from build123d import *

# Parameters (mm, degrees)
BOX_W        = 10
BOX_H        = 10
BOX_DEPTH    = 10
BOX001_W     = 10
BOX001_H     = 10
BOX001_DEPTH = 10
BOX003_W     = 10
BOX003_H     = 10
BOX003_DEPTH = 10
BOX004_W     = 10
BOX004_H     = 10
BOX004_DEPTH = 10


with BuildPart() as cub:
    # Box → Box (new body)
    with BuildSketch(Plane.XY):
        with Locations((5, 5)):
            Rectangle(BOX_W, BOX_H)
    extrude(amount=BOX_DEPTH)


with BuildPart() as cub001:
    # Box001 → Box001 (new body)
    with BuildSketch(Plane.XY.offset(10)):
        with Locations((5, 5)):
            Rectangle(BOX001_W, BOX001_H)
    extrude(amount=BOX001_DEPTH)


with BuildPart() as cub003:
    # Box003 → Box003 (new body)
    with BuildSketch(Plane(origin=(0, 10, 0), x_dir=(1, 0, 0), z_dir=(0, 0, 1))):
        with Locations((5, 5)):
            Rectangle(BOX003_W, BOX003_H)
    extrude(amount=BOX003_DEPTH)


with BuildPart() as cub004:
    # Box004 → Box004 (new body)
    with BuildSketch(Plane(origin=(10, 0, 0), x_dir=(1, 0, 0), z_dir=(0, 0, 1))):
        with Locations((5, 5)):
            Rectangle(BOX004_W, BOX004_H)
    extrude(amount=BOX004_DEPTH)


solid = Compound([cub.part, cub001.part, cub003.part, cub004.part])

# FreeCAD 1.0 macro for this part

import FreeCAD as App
import Part
import Sketcher

V = App.Vector
Q = App.Units.Quantity


def add_polygon(sketch, points):
    """Adds a closed chain of lines whose ends are joined by coincident constraints."""
    first, n = sketch.GeometryCount, len(points)
    for a, b in zip(points, points[1:] + points[:1]):
        sketch.addGeometry(Part.LineSegment(App.Vector(*a, 0), App.Vector(*b, 0)), False)
    for i in range(n):
        sketch.addConstraint(Sketcher.Constraint("Coincident", first + i, 2, first + (i + 1) % n, 1))

doc = App.newDocument("Part")
body = doc.addObject("PartDesign::Body", "Body")

sketch1 = body.newObject("Sketcher::SketchObject", "Sketch")
sketch1.AttachmentSupport = (doc.getObject("XY_Plane"), [""])
sketch1.MapMode = "FlatFace"
add_polygon(sketch1, [(0, 10), (0, 0), (10, 0), (10, 10)])
sketch1.addConstraint([
    Sketcher.Constraint("Vertical", 0),
    Sketcher.Constraint("Horizontal", 1),
    Sketcher.Constraint("Vertical", 2),
    Sketcher.Constraint("Horizontal", 3),
    Sketcher.Constraint("Coincident", 0, 2, -1, 1),
    Sketcher.Constraint("Equal", 3, 0),
    Sketcher.Constraint("DistanceX", 1, 1, 1, 2, Q("10 mm")),
])
pad1 = body.newObject("PartDesign::Pad", "Pad")
pad1.Profile = sketch1
pad1.Length = 10
body2 = doc.addObject("PartDesign::Body", "Body001")

sketch2 = body2.newObject("Sketcher::SketchObject", "Sketch001")
sketch2.AttachmentSupport = (doc.getObject("XY_Plane001"), [""])
sketch2.MapMode = "FlatFace"
sketch2.AttachmentOffset = App.Placement(V(0, 0, 10), App.Rotation())
add_polygon(sketch2, [(0, 10), (0, 0), (10, 0), (10, 10)])
sketch2.addConstraint([
    Sketcher.Constraint("Vertical", 0),
    Sketcher.Constraint("Horizontal", 1),
    Sketcher.Constraint("Vertical", 2),
    Sketcher.Constraint("Horizontal", 3),
    Sketcher.Constraint("Coincident", 0, 2, -1, 1),
    Sketcher.Constraint("Equal", 3, 0),
    Sketcher.Constraint("DistanceX", 1, 1, 1, 2, Q("10 mm")),
])
pad2 = body2.newObject("PartDesign::Pad", "Pad001")
pad2.Profile = sketch2
pad2.Length = 10
body3 = doc.addObject("PartDesign::Body", "Body002")

sketch3 = body3.newObject("Sketcher::SketchObject", "Sketch002")
sketch3.AttachmentSupport = (doc.getObject("XY_Plane002"), [""])
sketch3.MapMode = "FlatFace"
add_polygon(sketch3, [(0, 20), (0, 10), (10, 10), (10, 20)])
sketch3.addConstraint([
    Sketcher.Constraint("Vertical", 0),
    Sketcher.Constraint("Horizontal", 1),
    Sketcher.Constraint("Vertical", 2),
    Sketcher.Constraint("Horizontal", 3),
    Sketcher.Constraint("PointOnObject", 0, 2, -2),
    Sketcher.Constraint("Equal", 3, 0),
    Sketcher.Constraint("DistanceX", 1, 1, 1, 2, Q("10 mm")),
    Sketcher.Constraint("DistanceY", -1, 1, 0, 2, Q("10 mm")),
])
pad3 = body3.newObject("PartDesign::Pad", "Pad002")
pad3.Profile = sketch3
pad3.Length = 10
body4 = doc.addObject("PartDesign::Body", "Body003")

sketch4 = body4.newObject("Sketcher::SketchObject", "Sketch003")
sketch4.AttachmentSupport = (doc.getObject("XY_Plane003"), [""])
sketch4.MapMode = "FlatFace"
add_polygon(sketch4, [(10, 10), (10, 0), (20, 0), (20, 10)])
sketch4.addConstraint([
    Sketcher.Constraint("Vertical", 0),
    Sketcher.Constraint("Horizontal", 1),
    Sketcher.Constraint("Vertical", 2),
    Sketcher.Constraint("Horizontal", 3),
    Sketcher.Constraint("PointOnObject", 0, 2, -1),
    Sketcher.Constraint("Equal", 3, 0),
    Sketcher.Constraint("DistanceX", 1, 1, 1, 2, Q("10 mm")),
    Sketcher.Constraint("DistanceX", -1, 1, 0, 2, Q("10 mm")),
])
pad4 = body4.newObject("PartDesign::Pad", "Pad003")
pad4.Profile = sketch4
pad4.Length = 10

doc.recompute()
